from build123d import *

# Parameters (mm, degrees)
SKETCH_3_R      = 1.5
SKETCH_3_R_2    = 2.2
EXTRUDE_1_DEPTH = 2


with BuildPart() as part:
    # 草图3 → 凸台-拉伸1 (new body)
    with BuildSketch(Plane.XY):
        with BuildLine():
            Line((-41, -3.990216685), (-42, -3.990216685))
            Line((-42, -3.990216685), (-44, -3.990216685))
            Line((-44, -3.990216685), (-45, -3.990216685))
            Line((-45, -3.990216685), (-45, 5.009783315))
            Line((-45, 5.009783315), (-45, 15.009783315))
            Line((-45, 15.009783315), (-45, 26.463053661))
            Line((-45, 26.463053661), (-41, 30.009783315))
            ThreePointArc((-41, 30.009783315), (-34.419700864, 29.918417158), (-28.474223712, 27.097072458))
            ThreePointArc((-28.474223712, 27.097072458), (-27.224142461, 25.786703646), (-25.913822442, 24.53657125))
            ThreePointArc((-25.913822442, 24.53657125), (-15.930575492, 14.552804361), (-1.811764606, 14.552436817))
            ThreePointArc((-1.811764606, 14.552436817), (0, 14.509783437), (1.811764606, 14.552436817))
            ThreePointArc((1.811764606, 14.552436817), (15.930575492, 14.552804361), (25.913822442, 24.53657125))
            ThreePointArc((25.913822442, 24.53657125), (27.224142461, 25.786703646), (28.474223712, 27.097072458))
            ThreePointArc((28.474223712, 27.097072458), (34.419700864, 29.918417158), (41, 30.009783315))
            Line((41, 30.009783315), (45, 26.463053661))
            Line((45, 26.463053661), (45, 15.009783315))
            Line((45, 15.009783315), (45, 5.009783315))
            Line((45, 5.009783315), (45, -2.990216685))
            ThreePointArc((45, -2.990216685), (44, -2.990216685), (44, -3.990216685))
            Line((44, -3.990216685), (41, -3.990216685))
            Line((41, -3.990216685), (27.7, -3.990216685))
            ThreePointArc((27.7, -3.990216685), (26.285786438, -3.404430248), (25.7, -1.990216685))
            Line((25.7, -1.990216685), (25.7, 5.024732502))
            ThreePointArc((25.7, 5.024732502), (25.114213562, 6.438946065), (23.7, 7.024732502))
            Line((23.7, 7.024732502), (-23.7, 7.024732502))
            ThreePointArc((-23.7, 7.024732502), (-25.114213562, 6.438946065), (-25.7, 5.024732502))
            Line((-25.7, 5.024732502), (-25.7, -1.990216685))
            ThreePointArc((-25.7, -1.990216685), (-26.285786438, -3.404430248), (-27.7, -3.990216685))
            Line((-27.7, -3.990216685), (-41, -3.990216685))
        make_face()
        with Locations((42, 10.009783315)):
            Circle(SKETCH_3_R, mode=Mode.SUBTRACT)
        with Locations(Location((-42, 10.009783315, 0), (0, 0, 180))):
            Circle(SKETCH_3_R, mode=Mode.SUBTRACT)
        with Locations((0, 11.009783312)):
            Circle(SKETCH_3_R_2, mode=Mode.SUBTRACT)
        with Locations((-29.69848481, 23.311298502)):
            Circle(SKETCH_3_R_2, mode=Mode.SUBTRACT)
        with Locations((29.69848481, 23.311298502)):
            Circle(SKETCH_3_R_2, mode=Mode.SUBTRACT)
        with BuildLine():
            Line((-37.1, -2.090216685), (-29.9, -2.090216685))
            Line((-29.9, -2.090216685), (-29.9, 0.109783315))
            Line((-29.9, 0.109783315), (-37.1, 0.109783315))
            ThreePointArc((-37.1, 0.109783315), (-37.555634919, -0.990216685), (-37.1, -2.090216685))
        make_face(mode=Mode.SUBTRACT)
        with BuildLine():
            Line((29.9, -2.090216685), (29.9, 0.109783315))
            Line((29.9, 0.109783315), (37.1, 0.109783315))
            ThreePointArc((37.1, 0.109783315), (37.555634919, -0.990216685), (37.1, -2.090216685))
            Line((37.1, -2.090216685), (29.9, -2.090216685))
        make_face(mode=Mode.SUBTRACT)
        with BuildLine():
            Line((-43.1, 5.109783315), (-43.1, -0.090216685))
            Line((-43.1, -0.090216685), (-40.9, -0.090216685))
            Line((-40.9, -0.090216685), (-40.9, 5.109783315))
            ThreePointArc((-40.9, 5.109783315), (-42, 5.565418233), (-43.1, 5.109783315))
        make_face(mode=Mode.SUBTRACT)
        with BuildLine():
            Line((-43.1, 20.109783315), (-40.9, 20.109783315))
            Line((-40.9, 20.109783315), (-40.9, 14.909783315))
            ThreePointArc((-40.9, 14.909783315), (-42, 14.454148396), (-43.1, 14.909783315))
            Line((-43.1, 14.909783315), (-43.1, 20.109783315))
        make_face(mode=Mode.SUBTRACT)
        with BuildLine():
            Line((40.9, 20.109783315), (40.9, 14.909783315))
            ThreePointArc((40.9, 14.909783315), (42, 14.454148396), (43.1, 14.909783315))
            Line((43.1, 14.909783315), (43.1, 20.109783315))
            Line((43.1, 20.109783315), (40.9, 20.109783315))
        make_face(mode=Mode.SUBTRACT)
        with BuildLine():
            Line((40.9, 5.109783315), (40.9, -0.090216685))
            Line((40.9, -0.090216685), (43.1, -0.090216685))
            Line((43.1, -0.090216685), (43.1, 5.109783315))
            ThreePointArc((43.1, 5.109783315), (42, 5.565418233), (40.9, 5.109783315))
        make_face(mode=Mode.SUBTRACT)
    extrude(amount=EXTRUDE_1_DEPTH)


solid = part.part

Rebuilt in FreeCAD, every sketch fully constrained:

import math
import FreeCAD as App
import Part
import Sketcher
from FreeCAD import Vector
Q = App.Units.Quantity

doc = App.newDocument("Part")
body = doc.addObject("PartDesign::Body", "Body")

# Sketch on XY plane
sketch1 = body.newObject("Sketcher::SketchObject", "Sketch")
sketch1.AttachmentSupport = (doc.getObject("XY_Plane"), [""])
sketch1.MapMode = "FlatFace"
sketch1.addGeometry([
    Part.LineSegment(Vector(-45, 26.5, 0), Vector(-45, -4, 0)),  # 0
    Part.LineSegment(Vector(-45, -4, 0), Vector(-27.7, -4, 0)),  # 1
    Part.ArcOfCircle(Part.Circle(Vector(-27.7, -2, 0), Vector(0, 0, 1), 2), math.radians(-90), math.radians(0)),  # 2
    Part.LineSegment(Vector(-25.7, -2, 0), Vector(-25.7, 5, 0)),  # 3
    Part.ArcOfCircle(Part.Circle(Vector(-23.7, 5, 0), Vector(0, 0, 1), 2), math.radians(90), math.radians(180)),  # 4
    Part.LineSegment(Vector(-23.7, 7, 0), Vector(23.7, 7, 0)),  # 5
    Part.ArcOfCircle(Part.Circle(Vector(23.7, 5, 0), Vector(0, 0, 1), 2), math.radians(0), math.radians(90)),  # 6
    Part.LineSegment(Vector(25.7, 5, 0), Vector(25.7, -2, 0)),  # 7
    Part.ArcOfCircle(Part.Circle(Vector(27.7, -2, 0), Vector(0, 0, 1), 2), math.radians(180), math.radians(270)),  # 8
    Part.LineSegment(Vector(27.7, -4, 0), Vector(44, -4, 0)),  # 9
    Part.ArcOfCircle(Part.Circle(Vector(44.5, -3.5, 0), Vector(0, 0, 1), 0.7), math.radians(45), math.radians(225)),  # 10
    Part.LineSegment(Vector(45, -3, 0), Vector(45, 26.5, 0)),  # 11
    Part.LineSegment(Vector(45, 26.5, 0), Vector(41, 30, 0)),  # 12
    Part.ArcOfCircle(Part.Circle(Vector(37.9, 14.9, 0), Vector(0, 0, 1), 15.5), math.radians(79), math.radians(128)),  # 13
    Part.ArcOfCircle(Part.Circle(Vector(0, 53, 0), Vector(0, 0, 1), 38.5), math.radians(-47.69), math.radians(-42.3)),  # 14
    Part.ArcOfCircle(Part.Circle(Vector(8.9, 31.6, 0), Vector(0, 0, 1), 18.4), math.radians(-112), math.radians(-22)),  # 15
    Part.ArcOfCircle(Part.Circle(Vector(0, 53, 0), Vector(0, 0, 1), 38.5), math.radians(-92.7), math.radians(-87.3)),  # 16
    Part.ArcOfCircle(Part.Circle(Vector(-8.9, 31.6, 0), Vector(0, 0, 1), 18.4), math.radians(-158), math.radians(-68)),  # 17
    Part.ArcOfCircle(Part.Circle(Vector(0, 53, 0), Vector(0, 0, 1), 38.5), math.radians(-137.7), math.radians(-132.31)),  # 18
    Part.ArcOfCircle(Part.Circle(Vector(-37.9, 14.9, 0), Vector(0, 0, 1), 15.5), math.radians(52), math.radians(101)),  # 19
    Part.LineSegment(Vector(-41, 30, 0), Vector(-45, 26.5, 0)),  # 20
    Part.LineSegment(Vector(29.9, -2.1, 0), Vector(29.9, 0.1, 0)),  # 21
    Part.LineSegment(Vector(29.9, 0.1, 0), Vector(37.1, 0.1, 0)),  # 22
    Part.ArcOfCircle(Part.Circle(Vector(36, -1, 0), Vector(0, 0, 1), 1.6), math.radians(-45), math.radians(45)),  # 23
    Part.LineSegment(Vector(37.1, -2.1, 0), Vector(29.9, -2.1, 0)),  # 24
    Part.ArcOfCircle(Part.Circle(Vector(42, 4, 0), Vector(0, 0, 1), 1.6), math.radians(45), math.radians(135)),  # 25
    Part.LineSegment(Vector(43.1, 5.1, 0), Vector(43.1, -0.1, 0)),  # 26
    Part.LineSegment(Vector(43.1, -0.1, 0), Vector(40.9, -0.1, 0)),  # 27
    Part.LineSegment(Vector(40.9, -0.1, 0), Vector(40.9, 5.1, 0)),  # 28
    Part.Circle(Vector(42, 10, 0), Vector(0, 0, 1), 1.5),  # 29
    Part.ArcOfCircle(Part.Circle(Vector(-36, -1, 0), Vector(0, 0, 1), 1.6), math.radians(135), math.radians(225)),  # 30
    Part.LineSegment(Vector(-37.1, 0.1, 0), Vector(-29.9, 0.1, 0)),  # 31
    Part.LineSegment(Vector(-29.9, 0.1, 0), Vector(-29.9, -2.1, 0)),  # 32
    Part.LineSegment(Vector(-29.9, -2.1, 0), Vector(-37.1, -2.1, 0)),  # 33
    Part.ArcOfCircle(Part.Circle(Vector(-42, 4, 0), Vector(0, 0, 1), 1.6), math.radians(45), math.radians(135)),  # 34
    Part.LineSegment(Vector(-40.9, 5.1, 0), Vector(-40.9, -0.1, 0)),  # 35
    Part.LineSegment(Vector(-40.9, -0.1, 0), Vector(-43.1, -0.1, 0)),  # 36
    Part.LineSegment(Vector(-43.1, -0.1, 0), Vector(-43.1, 5.1, 0)),  # 37
    Part.Circle(Vector(0, 11, 0), Vector(0, 0, 1), 2.2),  # 38
    Part.Circle(Vector(-42, 10, 0), Vector(0, 0, 1), 1.5),  # 39
    Part.LineSegment(Vector(40.9, 20.1, 0), Vector(43.1, 20.1, 0)),  # 40
    Part.LineSegment(Vector(43.1, 20.1, 0), Vector(43.1, 14.9, 0)),  # 41
    Part.ArcOfCircle(Part.Circle(Vector(42, 16, 0), Vector(0, 0, 1), 1.6), math.radians(-135), math.radians(-45)),  # 42
    Part.LineSegment(Vector(40.9, 14.9, 0), Vector(40.9, 20.1, 0)),  # 43
    Part.Circle(Vector(29.7, 23.3, 0), Vector(0, 0, 1), 2.2),  # 44
    Part.LineSegment(Vector(-43.1, 20.1, 0), Vector(-40.9, 20.1, 0)),  # 45
    Part.LineSegment(Vector(-40.9, 20.1, 0), Vector(-40.9, 14.9, 0)),  # 46
    Part.ArcOfCircle(Part.Circle(Vector(-42, 16, 0), Vector(0, 0, 1), 1.6), math.radians(-135), math.radians(-45)),  # 47
    Part.LineSegment(Vector(-43.1, 14.9, 0), Vector(-43.1, 20.1, 0)),  # 48
    Part.Circle(Vector(-29.7, 23.3, 0), Vector(0, 0, 1), 2.2),  # 49
], False)
sketch1.addConstraint([
    Sketcher.Constraint("Coincident", 0, 2, 1, 1),
    Sketcher.Constraint("Tangent", 1, 2, 2, 1),
    Sketcher.Constraint("Tangent", 2, 2, 3, 1),
    Sketcher.Constraint("Tangent", 3, 2, 4, 2),
    Sketcher.Constraint("Tangent", 4, 1, 5, 1),
    Sketcher.Constraint("Tangent", 5, 2, 6, 2),
    Sketcher.Constraint("Tangent", 6, 1, 7, 1),
    Sketcher.Constraint("Tangent", 7, 2, 8, 1),
    Sketcher.Constraint("Tangent", 8, 2, 9, 1),
    Sketcher.Constraint("Coincident", 9, 2, 10, 2),
    Sketcher.Constraint("Coincident", 10, 1, 11, 1),
    Sketcher.Constraint("Coincident", 11, 2, 12, 1),
    Sketcher.Constraint("Coincident", 12, 2, 13, 1),
    Sketcher.Constraint("Coincident", 13, 2, 14, 2),
    Sketcher.Constraint("Coincident", 14, 1, 15, 2),
    Sketcher.Constraint("Coincident", 15, 1, 16, 2),
    Sketcher.Constraint("Coincident", 16, 1, 17, 2),
    Sketcher.Constraint("Coincident", 17, 1, 18, 2),
    Sketcher.Constraint("Coincident", 18, 1, 19, 1),
    Sketcher.Constraint("Coincident", 19, 2, 20, 1),
    Sketcher.Constraint("Coincident", 20, 2, 0, 1),
    Sketcher.Constraint("Coincident", 21, 2, 22, 1),
    Sketcher.Constraint("Coincident", 22, 2, 23, 2),
    Sketcher.Constraint("Coincident", 23, 1, 24, 1),
    Sketcher.Constraint("Coincident", 24, 2, 21, 1),
    Sketcher.Constraint("Coincident", 25, 1, 26, 1),
    Sketcher.Constraint("Coincident", 26, 2, 27, 1),
    Sketcher.Constraint("Coincident", 27, 2, 28, 1),
    Sketcher.Constraint("Coincident", 28, 2, 25, 2),
    Sketcher.Constraint("Coincident", 30, 1, 31, 1),
    Sketcher.Constraint("Coincident", 31, 2, 32, 1),
    Sketcher.Constraint("Coincident", 32, 2, 33, 1),
    Sketcher.Constraint("Coincident", 33, 2, 30, 2),
    Sketcher.Constraint("Coincident", 34, 1, 35, 1),
    Sketcher.Constraint("Coincident", 35, 2, 36, 1),
    Sketcher.Constraint("Coincident", 36, 2, 37, 1),
    Sketcher.Constraint("Coincident", 37, 2, 34, 2),
    Sketcher.Constraint("Coincident", 40, 2, 41, 1),
    Sketcher.Constraint("Coincident", 41, 2, 42, 2),
    Sketcher.Constraint("Coincident", 42, 1, 43, 1),
    Sketcher.Constraint("Coincident", 43, 2, 40, 1),
    Sketcher.Constraint("Coincident", 45, 2, 46, 1),
    Sketcher.Constraint("Coincident", 46, 2, 47, 2),
    Sketcher.Constraint("Coincident", 47, 1, 48, 1),
    Sketcher.Constraint("Coincident", 48, 2, 45, 1),
    Sketcher.Constraint("Vertical", 0),
    Sketcher.Constraint("Horizontal", 1),
    Sketcher.Constraint("Vertical", 3),
    Sketcher.Constraint("Horizontal", 5),
    Sketcher.Constraint("Vertical", 7),
    Sketcher.Constraint("Horizontal", 9),
    Sketcher.Constraint("Vertical", 11),
    Sketcher.Constraint("Vertical", 21),
    Sketcher.Constraint("Horizontal", 22),
    Sketcher.Constraint("Horizontal", 24),
    Sketcher.Constraint("Vertical", 26),
    Sketcher.Constraint("Horizontal", 27),
    Sketcher.Constraint("Vertical", 28),
    Sketcher.Constraint("Horizontal", 31),
    Sketcher.Constraint("Vertical", 32),
    Sketcher.Constraint("Horizontal", 33),
    Sketcher.Constraint("Vertical", 35),
    Sketcher.Constraint("Horizontal", 36),
    Sketcher.Constraint("Vertical", 37),
    Sketcher.Constraint("Horizontal", 40),
    Sketcher.Constraint("Vertical", 41),
    Sketcher.Constraint("Vertical", 43),
    Sketcher.Constraint("Horizontal", 45),
    Sketcher.Constraint("Vertical", 46),
    Sketcher.Constraint("Vertical", 48),
    Sketcher.Constraint("Coincident", 16, 3, 14, 3),
    Sketcher.Constraint("Coincident", 18, 3, 14, 3),
    Sketcher.Constraint("Equal", 2, 4),
    Sketcher.Constraint("Equal", 4, 6),
    Sketcher.Constraint("Equal", 6, 8),
    Sketcher.Constraint("Equal", 14, 16),
    Sketcher.Constraint("Equal", 15, 17),
    Sketcher.Constraint("Equal", 16, 18),
    Sketcher.Constraint("Equal", 13, 19),
    Sketcher.Constraint("Equal", 23, 25),
    Sketcher.Constraint("Equal", 25, 30),
    Sketcher.Constraint("Equal", 30, 34),
    Sketcher.Constraint("Equal", 29, 39),
    Sketcher.Constraint("Equal", 34, 42),
    Sketcher.Constraint("Equal", 38, 44),
    Sketcher.Constraint("Equal", 42, 47),
    Sketcher.Constraint("Equal", 44, 49),
    Sketcher.Constraint("Symmetric", 2, 3, 8, 3, -2),
    Sketcher.Constraint("Symmetric", 15, 3, 17, 3, -2),
    Sketcher.Constraint("Symmetric", 13, 3, 19, 3, -2),
    Sketcher.Constraint("Symmetric", 23, 3, 30, 3, -2),
    Sketcher.Constraint("Symmetric", 25, 3, 34, 3, -2),
    Sketcher.Constraint("Symmetric", 29, 3, 39, 3, -2),
    Sketcher.Constraint("Symmetric", 42, 3, 47, 3, -2),
    Sketcher.Constraint("Symmetric", 44, 3, 49, 3, -2),
    Sketcher.Constraint("Symmetric", 11, 2, 20, 2, -2),
    Sketcher.Constraint("Symmetric", 21, 2, 31, 2, -2),
    Sketcher.Constraint("Symmetric", 27, 2, 35, 2, -2),
    Sketcher.Constraint("Symmetric", 43, 2, 45, 2, -2),
    Sketcher.Constraint("PointOnObject", 14, 3, -2),
    Sketcher.Constraint("PointOnObject", 38, 3, -2),
    Sketcher.Constraint("Horizontal", 12, 2, 19, 2),
    Sketcher.Constraint("Horizontal", 25, 1, 28, 2),
    Sketcher.Constraint("Horizontal", 24, 2, 32, 2),
    Sketcher.Constraint("Horizontal", 34, 1, 37, 2),
    Sketcher.Constraint("Horizontal", 41, 2, 42, 1),
    Sketcher.Constraint("Horizontal", 46, 2, 47, 1),
    Sketcher.Constraint("Vertical", 25, 3, 29, 3),
    Sketcher.Constraint("Vertical", 29, 3, 42, 3),
    Sketcher.Constraint("Vertical", 22, 2, 23, 1),
    Sketcher.Constraint("Vertical", 26, 2, 40, 2),
    Sketcher.Constraint("Equal", 45, 21),
    Sketcher.Constraint("Equal", 37, 41),
    Sketcher.Constraint("Diameter", 29, Q("3 mm")),
    Sketcher.Constraint("Radius", 2, Q("2 mm")),
    Sketcher.Constraint("Diameter", 38, Q("4.4 mm")),
    Sketcher.Constraint("Radius", 14, Q("38.5 mm")),
    Sketcher.Constraint("DistanceX", 1, 1, 1, 2, Q("17.3 mm")),
    Sketcher.Constraint("DistanceX", 5, 1, 5, 2, Q("47.4 mm")),
    Sketcher.Constraint("DistanceX", 9, 1, 9, 2, Q("16.3 mm")),
    Sketcher.Constraint("DistanceX", 22, 1, 22, 2, Q("7.2 mm")),
    Sketcher.Constraint("DistanceX", 27, 2, 27, 1, Q("2.2 mm")),
    Sketcher.Constraint("DistanceY", 26, 2, 26, 1, Q("5.2 mm")),
    Sketcher.Constraint("DistanceX", -1, 1, 23, 3, Q("36 mm")),
    Sketcher.Constraint("DistanceX", -1, 1, 25, 3, Q("42 mm")),
    Sketcher.Constraint("DistanceX", -1, 1, 12, 2, Q("41 mm")),
    Sketcher.Constraint("DistanceX", -1, 1, 10, 3, Q("44.5 mm")),
    Sketcher.Constraint("DistanceX", -1, 1, 21, 2, Q("29.9 mm")),
    Sketcher.Constraint("Radius", 10, Q("0.707107 mm")),
    Sketcher.Constraint("Radius", 13, Q("15.451843 mm")),
    Sketcher.Constraint("Radius", 15, Q("18.447115 mm")),
    Sketcher.Constraint("DistanceY", 0, 2, 0, 1, Q("30.45327 mm")),
    Sketcher.Constraint("DistanceY", 3, 1, 3, 2, Q("7.014949 mm")),
    Sketcher.Constraint("DistanceY", -1, 1, 44, 3, Q("23.311299 mm")),
    Sketcher.Constraint("Distance", 12, Q("5.34596 mm")),
    Sketcher.Constraint("DistanceY", -1, 1, 13, 3, Q("14.868129 mm")),
    Sketcher.Constraint("DistanceY", -1, 1, 14, 1, Q("24.536571 mm")),
    Sketcher.Constraint("DistanceY", 2, 3, -1, 1, Q("1.990217 mm")),
    Sketcher.Constraint("DistanceY", -1, 1, 14, 3, Q("53.009783 mm")),
    Sketcher.Constraint("DistanceX", -1, 1, 15, 3, Q("8.870726 mm")),
    Sketcher.Constraint("DistanceY", 23, 3, -1, 1, Q("0.990217 mm")),
    Sketcher.Constraint("DistanceY", -1, 1, 25, 3, Q("4.009783 mm")),
    Sketcher.Constraint("DistanceY", -1, 1, 29, 3, Q("10.009783 mm")),
    Sketcher.Constraint("DistanceY", -1, 1, 38, 3, Q("11.009783 mm")),
    Sketcher.Constraint("DistanceY", -1, 1, 42, 3, Q("16.009783 mm")),
    Sketcher.Constraint("DistanceX", -1, 1, 44, 3, Q("29.698485 mm")),
])
pad1 = body.newObject("PartDesign::Pad", "Pad")
pad1.Profile = sketch1
pad1.Length = 2

doc.recompute()
